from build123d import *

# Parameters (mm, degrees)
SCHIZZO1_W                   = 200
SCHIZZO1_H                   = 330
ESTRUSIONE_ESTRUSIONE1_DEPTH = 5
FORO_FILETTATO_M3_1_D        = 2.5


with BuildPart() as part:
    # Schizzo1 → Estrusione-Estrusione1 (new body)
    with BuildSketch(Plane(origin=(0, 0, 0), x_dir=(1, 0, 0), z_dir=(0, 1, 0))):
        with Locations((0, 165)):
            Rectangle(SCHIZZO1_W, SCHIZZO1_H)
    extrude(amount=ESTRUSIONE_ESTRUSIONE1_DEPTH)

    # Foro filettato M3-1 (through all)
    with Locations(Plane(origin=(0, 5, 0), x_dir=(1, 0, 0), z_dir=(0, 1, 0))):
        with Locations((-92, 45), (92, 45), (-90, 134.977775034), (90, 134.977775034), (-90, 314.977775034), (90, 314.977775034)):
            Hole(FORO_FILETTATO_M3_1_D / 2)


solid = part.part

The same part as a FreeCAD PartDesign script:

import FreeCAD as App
import Part
import Sketcher
from FreeCAD import Vector

doc = App.newDocument("Part")
body = doc.addObject("PartDesign::Body", "Body")

sketch1 = body.newObject("Sketcher::SketchObject", "Sketch")
sketch1.AttachmentSupport = (doc.getObject("XZ_Plane"), [""])
sketch1.MapMode = "FlatFace"
sketch1.addGeometry([
    Part.LineSegment(Vector(-100, -330, 0), Vector(-100, 0, 0)),
    Part.LineSegment(Vector(-100, 0, 0), Vector(100, 0, 0)),
    Part.LineSegment(Vector(100, 0, 0), Vector(100, -330, 0)),
    Part.LineSegment(Vector(100, -330, 0), Vector(-100, -330, 0)),
], False)
sketch1.addConstraint([
    Sketcher.Constraint("Coincident", 0, 2, 1, 1),
    Sketcher.Constraint("Coincident", 1, 2, 2, 1),
    Sketcher.Constraint("Coincident", 2, 2, 3, 1),
    Sketcher.Constraint("Coincident", 3, 2, 0, 1),
    Sketcher.Constraint("Vertical", 0),
    Sketcher.Constraint("Horizontal", 1),
    Sketcher.Constraint("Vertical", 2),
    Sketcher.Constraint("Horizontal", 3),
    Sketcher.Constraint("Symmetric", 0, 2, 1, 2, -1, 1),
    Sketcher.Constraint("DistanceX", 1, 1, 1, 2, 200.0),
    Sketcher.Constraint("DistanceY", 0, 1, 0, 2, 330.0),
])
pad1 = body.newObject("PartDesign::Pad", "Pad")
pad1.Profile = sketch1
pad1.Length = 5
pad1.Reversed = True

sketch2 = body.newObject("Sketcher::SketchObject", "Sketch001")
sketch2.AttachmentSupport = (doc.getObject("XZ_Plane"), [""])
sketch2.MapMode = "FlatFace"
sketch2.AttachmentOffset = App.Placement(Vector(0, 0, -5), App.Rotation())
sketch2.addGeometry([
    Part.Circle(Vector(-92, -45, 0), Vector(0, 0, 1), 1.2),
    Part.Circle(Vector(92, -45, 0), Vector(0, 0, 1), 1.2),
    Part.Circle(Vector(-90, -135, 0), Vector(0, 0, 1), 1.2),
    Part.Circle(Vector(90, -135, 0), Vector(0, 0, 1), 1.2),
    Part.Circle(Vector(-90, -315, 0), Vector(0, 0, 1), 1.2),
    Part.Circle(Vector(90, -315, 0), Vector(0, 0, 1), 1.2),
], False)
sketch2.addConstraint([
    Sketcher.Constraint("Equal", 0, 1),
    Sketcher.Constraint("Equal", 1, 2),
    Sketcher.Constraint("Equal", 2, 3),
    Sketcher.Constraint("Equal", 3, 4),
    Sketcher.Constraint("Equal", 4, 5),
    Sketcher.Constraint("Symmetric", 0, 3, 1, 3, -2),
    Sketcher.Constraint("Symmetric", 2, 3, 3, 3, -2),
    Sketcher.Constraint("Symmetric", 4, 3, 5, 3, -2),
    Sketcher.Constraint("Vertical", 2, 3, 4, 3),
    Sketcher.Constraint("Diameter", 0, 2.5),
    Sketcher.Constraint("DistanceX", 0, 3, -1, 1, 92.0),
    Sketcher.Constraint("DistanceY", 0, 3, -1, 1, 45.0),
    Sketcher.Constraint("DistanceX", 2, 3, -1, 1, 90.0),
    Sketcher.Constraint("DistanceY", 4, 3, 2, 3, 180.0),
    Sketcher.Constraint("DistanceY", 2, 3, -1, 1, 134.977775),
])
doc.recompute()
hole = body.newObject("PartDesign::Hole", "Hole")
hole.Profile = sketch2
hole.ThreadType = "None"
hole.Diameter = 2.5
hole.DepthType = "ThroughAll"
hole.Reversed = True

doc.recompute()
